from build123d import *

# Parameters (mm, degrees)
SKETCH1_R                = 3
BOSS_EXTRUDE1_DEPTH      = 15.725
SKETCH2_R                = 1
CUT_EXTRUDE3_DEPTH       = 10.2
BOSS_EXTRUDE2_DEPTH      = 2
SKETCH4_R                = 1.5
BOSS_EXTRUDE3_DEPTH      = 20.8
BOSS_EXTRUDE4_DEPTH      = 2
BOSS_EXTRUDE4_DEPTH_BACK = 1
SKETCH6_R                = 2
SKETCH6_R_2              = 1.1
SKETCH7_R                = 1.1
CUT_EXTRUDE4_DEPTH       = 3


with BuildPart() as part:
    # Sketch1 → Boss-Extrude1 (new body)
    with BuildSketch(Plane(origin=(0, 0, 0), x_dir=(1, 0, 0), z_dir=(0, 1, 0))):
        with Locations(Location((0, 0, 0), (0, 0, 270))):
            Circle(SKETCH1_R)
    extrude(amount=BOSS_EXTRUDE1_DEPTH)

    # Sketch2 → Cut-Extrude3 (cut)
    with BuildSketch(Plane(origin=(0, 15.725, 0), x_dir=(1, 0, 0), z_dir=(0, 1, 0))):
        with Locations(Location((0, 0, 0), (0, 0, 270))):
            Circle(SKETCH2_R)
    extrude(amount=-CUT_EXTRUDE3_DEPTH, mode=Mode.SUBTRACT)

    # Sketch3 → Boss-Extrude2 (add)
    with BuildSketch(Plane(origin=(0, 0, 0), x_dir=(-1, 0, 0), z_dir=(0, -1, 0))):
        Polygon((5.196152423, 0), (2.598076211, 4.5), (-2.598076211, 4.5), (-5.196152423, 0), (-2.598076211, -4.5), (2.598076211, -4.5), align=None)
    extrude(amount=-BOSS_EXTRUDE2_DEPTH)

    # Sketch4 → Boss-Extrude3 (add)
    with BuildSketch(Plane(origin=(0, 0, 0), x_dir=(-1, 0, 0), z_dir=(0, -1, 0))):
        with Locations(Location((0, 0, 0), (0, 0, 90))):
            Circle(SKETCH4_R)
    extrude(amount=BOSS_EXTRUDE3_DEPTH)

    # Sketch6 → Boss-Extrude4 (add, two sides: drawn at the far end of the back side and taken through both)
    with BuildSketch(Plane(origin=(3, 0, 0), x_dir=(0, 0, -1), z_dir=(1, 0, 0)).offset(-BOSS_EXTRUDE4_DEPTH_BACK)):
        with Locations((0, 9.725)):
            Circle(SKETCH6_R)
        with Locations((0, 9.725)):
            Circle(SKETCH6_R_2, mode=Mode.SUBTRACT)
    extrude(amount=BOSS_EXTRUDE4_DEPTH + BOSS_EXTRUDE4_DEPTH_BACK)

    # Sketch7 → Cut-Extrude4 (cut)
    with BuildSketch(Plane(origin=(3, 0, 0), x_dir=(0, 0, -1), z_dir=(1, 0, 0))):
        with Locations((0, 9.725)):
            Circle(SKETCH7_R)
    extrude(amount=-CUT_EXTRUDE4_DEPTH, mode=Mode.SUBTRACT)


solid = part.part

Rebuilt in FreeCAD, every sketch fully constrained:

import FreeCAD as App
import Part
import Sketcher
Q = App.Units.Quantity

doc = App.newDocument("Part")
body = doc.addObject("PartDesign::Body", "Body")

sketch1 = body.newObject("Sketcher::SketchObject", "Sketch")
sketch1.AttachmentSupport = (doc.getObject("XZ_Plane"), [""])
sketch1.MapMode = "FlatFace"
sketch1.addGeometry(Part.Circle(App.Vector(0, 0, 0), App.Vector(0, 0, 1), 3), False)
sketch1.addConstraint([
    Sketcher.Constraint("Coincident", 0, 3, -1, 1),
    Sketcher.Constraint("Diameter", 0, Q("6 mm")),
])
pad1 = body.newObject("PartDesign::Pad", "Pad")
pad1.Profile = sketch1
pad1.Length = 15.725
pad1.Reversed = True

sketch2 = body.newObject("Sketcher::SketchObject", "Sketch001")
sketch2.AttachmentSupport = (doc.getObject("XZ_Plane"), [""])
sketch2.MapMode = "FlatFace"
sketch2.AttachmentOffset = App.Placement(App.Vector(0, 0, -15.725), App.Rotation())
sketch2.addGeometry(Part.Circle(App.Vector(0, 0, 0), App.Vector(0, 0, 1), 1), False)
sketch2.addConstraint([
    Sketcher.Constraint("Coincident", 0, 3, -1, 1),
    Sketcher.Constraint("Diameter", 0, Q("2 mm")),
])
pocket1 = body.newObject("PartDesign::Pocket", "Pocket")
pocket1.Profile = sketch2
pocket1.Length = 10.2
pocket1.Reversed = True

sketch3 = body.newObject("Sketcher::SketchObject", "Sketch002")
sketch3.AttachmentSupport = (doc.getObject("XZ_Plane"), [""])
sketch3.MapMode = "FlatFace"
sketch3.addGeometry([
    Part.LineSegment(App.Vector(-5, 0, 0), App.Vector(-3, -4, 0)),
    Part.LineSegment(App.Vector(-3, -4, 0), App.Vector(3, -4, 0)),
    Part.LineSegment(App.Vector(3, -4, 0), App.Vector(5, 0, 0)),
    Part.LineSegment(App.Vector(5, 0, 0), App.Vector(3, 4, 0)),
    Part.LineSegment(App.Vector(3, 4, 0), App.Vector(-3, 4, 0)),
    Part.LineSegment(App.Vector(-3, 4, 0), App.Vector(-5, 0, 0)),
], False)
sketch3.addConstraint([
    Sketcher.Constraint("Coincident", 0, 2, 1, 1),
    Sketcher.Constraint("Coincident", 1, 2, 2, 1),
    Sketcher.Constraint("Coincident", 2, 2, 3, 1),
    Sketcher.Constraint("Coincident", 3, 2, 4, 1),
    Sketcher.Constraint("Coincident", 4, 2, 5, 1),
    Sketcher.Constraint("Coincident", 5, 2, 0, 1),
    Sketcher.Constraint("Horizontal", 1),
    Sketcher.Constraint("Horizontal", 4),
    Sketcher.Constraint("Symmetric", 0, 2, 3, 2, -1, 1),
    Sketcher.Constraint("Symmetric", 2, 2, 5, 2, -1, 1),
    Sketcher.Constraint("PointOnObject", 2, 2, -1),
    Sketcher.Constraint("Parallel", 2, 5),
    Sketcher.Constraint("Vertical", 1, 2, 3, 2),
    Sketcher.Constraint("Angle", 0, Q("-60 deg")),
    Sketcher.Constraint("DistanceY", 1, 2, 3, 2, Q("9 mm")),
    Sketcher.Constraint("DistanceX", 1, 1, 1, 2, Q("5.196152 mm")),
])
pad2 = body.newObject("PartDesign::Pad", "Pad001")
pad2.Profile = sketch3
pad2.Length = 2
pad2.Reversed = True

sketch4 = body.newObject("Sketcher::SketchObject", "Sketch003")
sketch4.AttachmentSupport = (doc.getObject("XZ_Plane"), [""])
sketch4.MapMode = "FlatFace"
sketch4.addGeometry(Part.Circle(App.Vector(0, 0, 0), App.Vector(0, 0, 1), 1.5), False)
sketch4.addConstraint([
    Sketcher.Constraint("Coincident", 0, 3, -1, 1),
    Sketcher.Constraint("Diameter", 0, Q("3 mm")),
])
pad3 = body.newObject("PartDesign::Pad", "Pad002")
pad3.Profile = sketch4
pad3.Length = 20.8

sketch5 = body.newObject("Sketcher::SketchObject", "Sketch004")
sketch5.AttachmentSupport = (doc.getObject("YZ_Plane"), [""])
sketch5.MapMode = "FlatFace"
sketch5.AttachmentOffset = App.Placement(App.Vector(0, 0, 3), App.Rotation())
sketch5.addGeometry([
    Part.Circle(App.Vector(9.7, 0, 0), App.Vector(0, 0, 1), 2),
    Part.Circle(App.Vector(9.7, 0, 0), App.Vector(0, 0, 1), 1.1),
], False)
sketch5.addConstraint([
    Sketcher.Constraint("Coincident", 1, 3, 0, 3),
    Sketcher.Constraint("PointOnObject", 0, 3, -1),
    Sketcher.Constraint("Diameter", 0, Q("4 mm")),
    Sketcher.Constraint("Diameter", 1, Q("2.2 mm")),
    Sketcher.Constraint("DistanceX", -1, 1, 0, 3, Q("9.725 mm")),
])
pad4 = body.newObject("PartDesign::Pad", "Pad003")
pad4.Profile = sketch5
pad4.Type = "TwoLengths"
pad4.Length = 2
pad4.Length2 = 1

sketch6 = body.newObject("Sketcher::SketchObject", "Sketch005")
sketch6.AttachmentSupport = (doc.getObject("YZ_Plane"), [""])
sketch6.MapMode = "FlatFace"
sketch6.AttachmentOffset = App.Placement(App.Vector(0, 0, 3), App.Rotation())
sketch6.addGeometry(Part.Circle(App.Vector(9.7, 0, 0), App.Vector(0, 0, 1), 1.1), False)
sketch6.addConstraint([
    Sketcher.Constraint("PointOnObject", 0, 3, -1),
    Sketcher.Constraint("Diameter", 0, Q("2.2 mm")),
    Sketcher.Constraint("DistanceX", -1, 1, 0, 3, Q("9.725 mm")),
])
pocket2 = body.newObject("PartDesign::Pocket", "Pocket001")
pocket2.Profile = sketch6
pocket2.Length = 3

doc.recompute()
